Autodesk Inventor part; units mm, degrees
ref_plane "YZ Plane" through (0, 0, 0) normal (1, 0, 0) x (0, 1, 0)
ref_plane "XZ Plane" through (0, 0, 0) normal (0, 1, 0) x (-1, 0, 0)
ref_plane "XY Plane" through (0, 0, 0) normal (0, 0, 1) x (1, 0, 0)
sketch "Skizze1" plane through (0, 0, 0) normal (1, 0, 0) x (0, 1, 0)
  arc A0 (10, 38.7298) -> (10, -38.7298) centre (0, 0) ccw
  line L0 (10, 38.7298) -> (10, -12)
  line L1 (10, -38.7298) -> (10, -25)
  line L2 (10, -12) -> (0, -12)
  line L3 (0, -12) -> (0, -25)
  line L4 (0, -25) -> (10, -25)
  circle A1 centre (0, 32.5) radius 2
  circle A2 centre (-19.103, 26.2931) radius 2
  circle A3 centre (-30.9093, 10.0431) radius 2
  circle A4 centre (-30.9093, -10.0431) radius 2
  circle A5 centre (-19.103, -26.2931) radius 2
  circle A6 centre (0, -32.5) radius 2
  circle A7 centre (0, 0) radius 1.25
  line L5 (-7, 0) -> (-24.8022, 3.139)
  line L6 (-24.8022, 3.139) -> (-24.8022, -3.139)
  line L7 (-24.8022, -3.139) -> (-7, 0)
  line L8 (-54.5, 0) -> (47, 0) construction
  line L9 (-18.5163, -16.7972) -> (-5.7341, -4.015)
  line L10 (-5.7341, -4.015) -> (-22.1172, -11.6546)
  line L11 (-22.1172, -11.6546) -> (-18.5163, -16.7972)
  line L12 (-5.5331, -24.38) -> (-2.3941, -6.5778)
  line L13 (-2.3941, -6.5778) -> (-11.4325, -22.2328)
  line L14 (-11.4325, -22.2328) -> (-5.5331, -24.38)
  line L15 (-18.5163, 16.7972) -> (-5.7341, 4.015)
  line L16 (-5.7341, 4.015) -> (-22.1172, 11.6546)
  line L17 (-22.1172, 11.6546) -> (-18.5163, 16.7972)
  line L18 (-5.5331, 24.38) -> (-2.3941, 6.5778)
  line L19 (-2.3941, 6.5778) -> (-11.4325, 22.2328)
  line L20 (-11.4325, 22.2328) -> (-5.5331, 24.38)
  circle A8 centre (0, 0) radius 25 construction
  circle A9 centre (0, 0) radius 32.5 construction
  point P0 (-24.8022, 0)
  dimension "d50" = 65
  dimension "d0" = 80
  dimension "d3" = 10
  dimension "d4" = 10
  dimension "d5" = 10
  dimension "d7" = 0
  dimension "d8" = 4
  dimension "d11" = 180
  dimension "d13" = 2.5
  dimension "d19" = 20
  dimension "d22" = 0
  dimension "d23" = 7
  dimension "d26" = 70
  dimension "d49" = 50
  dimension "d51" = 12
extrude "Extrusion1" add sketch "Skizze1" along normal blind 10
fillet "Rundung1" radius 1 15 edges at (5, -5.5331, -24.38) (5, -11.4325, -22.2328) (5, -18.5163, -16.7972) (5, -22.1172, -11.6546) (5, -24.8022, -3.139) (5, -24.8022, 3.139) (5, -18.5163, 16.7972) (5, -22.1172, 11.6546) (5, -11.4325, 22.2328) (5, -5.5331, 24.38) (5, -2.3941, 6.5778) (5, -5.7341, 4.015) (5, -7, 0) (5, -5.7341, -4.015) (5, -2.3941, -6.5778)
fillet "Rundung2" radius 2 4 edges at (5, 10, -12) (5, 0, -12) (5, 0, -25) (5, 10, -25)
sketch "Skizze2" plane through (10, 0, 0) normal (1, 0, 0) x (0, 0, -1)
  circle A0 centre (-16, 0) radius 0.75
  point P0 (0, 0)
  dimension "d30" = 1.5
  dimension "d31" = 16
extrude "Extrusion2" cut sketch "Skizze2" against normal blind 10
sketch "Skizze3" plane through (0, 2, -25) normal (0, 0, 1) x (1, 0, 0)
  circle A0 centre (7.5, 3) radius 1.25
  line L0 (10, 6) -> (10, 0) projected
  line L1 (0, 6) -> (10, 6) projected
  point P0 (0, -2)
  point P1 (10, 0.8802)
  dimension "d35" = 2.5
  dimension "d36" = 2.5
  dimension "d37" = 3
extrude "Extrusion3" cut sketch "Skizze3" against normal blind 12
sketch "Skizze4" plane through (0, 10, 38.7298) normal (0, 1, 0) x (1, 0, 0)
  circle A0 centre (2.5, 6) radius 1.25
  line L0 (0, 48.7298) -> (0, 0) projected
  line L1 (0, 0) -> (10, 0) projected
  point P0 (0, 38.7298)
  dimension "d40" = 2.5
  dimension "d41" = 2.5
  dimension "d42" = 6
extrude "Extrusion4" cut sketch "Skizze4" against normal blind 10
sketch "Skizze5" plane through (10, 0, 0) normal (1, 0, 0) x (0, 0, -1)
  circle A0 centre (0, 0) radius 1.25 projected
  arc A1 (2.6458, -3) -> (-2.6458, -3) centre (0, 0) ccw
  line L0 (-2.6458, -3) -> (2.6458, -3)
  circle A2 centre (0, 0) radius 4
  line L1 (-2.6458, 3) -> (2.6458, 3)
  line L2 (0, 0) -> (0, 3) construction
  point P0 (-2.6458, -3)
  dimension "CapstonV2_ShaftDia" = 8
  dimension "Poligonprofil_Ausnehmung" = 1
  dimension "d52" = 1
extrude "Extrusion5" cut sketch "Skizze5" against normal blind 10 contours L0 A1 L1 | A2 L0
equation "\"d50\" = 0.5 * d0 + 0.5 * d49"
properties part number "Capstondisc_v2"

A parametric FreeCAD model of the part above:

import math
import FreeCAD as App
import Part
import Sketcher

V = App.Vector
Q = App.Units.Quantity


def edges_at(feature, points):
    """Names of the edges that pass closest to the given points."""
    edges = feature.Shape.Edges
    near = lambda p: min(range(len(edges)), key=lambda i: edges[i].distToShape(Part.Vertex(*p))[0])
    return sorted({f"Edge{near(p) + 1}" for p in points})


def add_polygon(sketch, points):
    """Adds a closed chain of lines whose ends are joined by coincident constraints."""
    first, n = sketch.GeometryCount, len(points)
    for a, b in zip(points, points[1:] + points[:1]):
        sketch.addGeometry(Part.LineSegment(App.Vector(*a, 0), App.Vector(*b, 0)), False)
    for i in range(n):
        sketch.addConstraint(Sketcher.Constraint("Coincident", first + i, 2, first + (i + 1) % n, 1))

doc = App.newDocument("Part")
body = doc.addObject("PartDesign::Body", "Body")

# Sketch on YZ plane
sketch1 = body.newObject("Sketcher::SketchObject", "Sketch")
sketch1.AttachmentSupport = (doc.getObject("YZ_Plane"), [""])
sketch1.MapMode = "FlatFace"
sketch1.addGeometry(Part.LineSegment(V(10, -12, 0), V(10, 38.7298, 0)), False)  # 0
sketch1.addGeometry(Part.ArcOfCircle(Part.Circle(V(0, 0, 0), V(0, 0, 1), 39.999968), math.radians(75.522476), math.radians(284.477524)), False)  # 1
sketch1.addGeometry(Part.LineSegment(V(10, -38.7298, 0), V(10, -25, 0)), False)  # 2
sketch1.addGeometry(Part.LineSegment(V(10, -25, 0), V(0, -25, 0)), False)  # 3
sketch1.addGeometry(Part.LineSegment(V(0, -25, 0), V(0, -12, 0)), False)  # 4
sketch1.addGeometry(Part.LineSegment(V(0, -12, 0), V(10, -12, 0)), False)  # 5
sketch1.addGeometry(Part.Circle(V(-19.103, -26.2931, 0), V(0, 0, 1), 2), False)  # 6
sketch1.addGeometry(Part.Circle(V(-30.9093, -10.0431, 0), V(0, 0, 1), 2), False)  # 7
sketch1.addGeometry(Part.Circle(V(0, -32.5, 0), V(0, 0, 1), 2), False)  # 8
add_polygon(sketch1, [(-5.7341, -4.015), (-18.5163, -16.7972), (-22.1172, -11.6546)])  # lines 9-11
add_polygon(sketch1, [(-2.3941, -6.5778), (-5.5331, -24.38), (-11.4325, -22.2328)])  # lines 12-14
sketch1.addGeometry(Part.Circle(V(-30.9093, 10.0431, 0), V(0, 0, 1), 2), False)  # 15
add_polygon(sketch1, [(-24.8022, 3.139), (-7, 0), (-24.8022, -3.139)])  # lines 16-18
sketch1.addGeometry(Part.Circle(V(-19.103, 26.2931, 0), V(0, 0, 1), 2), False)  # 19
add_polygon(sketch1, [(-22.1172, 11.6546), (-18.5163, 16.7972), (-5.7341, 4.015)])  # lines 20-22
add_polygon(sketch1, [(-11.4325, 22.2328), (-5.5331, 24.38), (-2.3941, 6.5778)])  # lines 23-25
sketch1.addGeometry(Part.Circle(V(0, 0, 0), V(0, 0, 1), 1.25), False)  # 26
sketch1.addGeometry(Part.Circle(V(0, 32.5, 0), V(0, 0, 1), 2), False)  # 27
sketch1.addConstraint([
    Sketcher.Constraint("Coincident", 0, 2, 1, 1),
    Sketcher.Constraint("Coincident", 1, 2, 2, 1),
    Sketcher.Constraint("Coincident", 2, 2, 3, 1),
    Sketcher.Constraint("Coincident", 3, 2, 4, 1),
    Sketcher.Constraint("Coincident", 4, 2, 5, 1),
    Sketcher.Constraint("Coincident", 5, 2, 0, 1),
    Sketcher.Constraint("Vertical", 0),
    Sketcher.Constraint("Vertical", 2),
    Sketcher.Constraint("Horizontal", 3),
    Sketcher.Constraint("Vertical", 4),
    Sketcher.Constraint("Horizontal", 5),
    Sketcher.Constraint("Vertical", 18),
    Sketcher.Constraint("Coincident", 1, 3, -1, 1),
    Sketcher.Constraint("Coincident", 26, 3, -1, 1),
    Sketcher.Constraint("Equal", 6, 7),
    Sketcher.Constraint("Equal", 7, 8),
    Sketcher.Constraint("Equal", 8, 15),
    Sketcher.Constraint("Equal", 15, 19),
    Sketcher.Constraint("Equal", 19, 27),
    Sketcher.Constraint("Symmetric", 8, 3, 27, 3, -1, 1),
    Sketcher.Constraint("Symmetric", 7, 3, 15, 3, -1),
    Sketcher.Constraint("Symmetric", 6, 3, 19, 3, -1),
    Sketcher.Constraint("Symmetric", 9, 2, 20, 2, -1),
    Sketcher.Constraint("Symmetric", 11, 2, 21, 2, -1),
    Sketcher.Constraint("Symmetric", 10, 2, 22, 2, -1),
    Sketcher.Constraint("Symmetric", 12, 2, 23, 2, -1),
    Sketcher.Constraint("Symmetric", 14, 2, 24, 2, -1),
    Sketcher.Constraint("Symmetric", 13, 2, 25, 2, -1),
    Sketcher.Constraint("PointOnObject", 8, 3, -2),
    Sketcher.Constraint("PointOnObject", 3, 2, -2),
    Sketcher.Constraint("PointOnObject", 16, 2, -1),
    Sketcher.Constraint("Perpendicular", 12, 16),
    Sketcher.Constraint("Perpendicular", 9, 21),
    Sketcher.Constraint("Perpendicular", 17, 24),
    Sketcher.Constraint("Vertical", 0, 2, 1, 2),
    Sketcher.Constraint("Equal", 9, 11),
    Sketcher.Constraint("Equal", 11, 12),
    Sketcher.Constraint("Equal", 10, 13),
    Sketcher.Constraint("Equal", 12, 14),
    Sketcher.Constraint("Equal", 14, 16),
    Sketcher.Constraint("Diameter", 6, Q("4 mm")),
    Sketcher.Constraint("Radius", 1, Q("40 mm")),
    Sketcher.Constraint("Diameter", 26, Q("2.5 mm")),
    Sketcher.Constraint("DistanceX", 3, 2, 3, 1, Q("10 mm")),
    Sketcher.Constraint("Angle", 16, Q("-10 deg")),
    Sketcher.Constraint("Angle", 23, Q("20 deg")),
    Sketcher.Constraint("DistanceY", 4, 2, -1, 1, Q("12 mm")),
    Sketcher.Constraint("DistanceX", 16, 2, -1, 1, Q("7 mm")),
    Sketcher.Constraint("DistanceY", 4, 1, 4, 2, Q("13 mm")),
    Sketcher.Constraint("DistanceY", 8, 3, -1, 1, Q("32.5 mm")),
    Sketcher.Constraint("DistanceY", 18, 1, 18, 2, Q("6.278 mm")),
    Sketcher.Constraint("DistanceY", 12, 2, -1, 1, Q("24.38 mm")),
    Sketcher.Constraint("DistanceY", 6, 3, 7, 3, Q("16.25 mm")),
    Sketcher.Constraint("DistanceX", 6, 3, 12, 2, Q("13.57 mm")),
    Sketcher.Constraint("DistanceX", 11, 2, 14, 2, Q("3.34 mm")),
    Sketcher.Constraint("DistanceY", 11, 2, 21, 2, Q("8.03 mm")),
    Sketcher.Constraint("DistanceX", 6, 3, -1, 1, Q("19.103 mm")),
    Sketcher.Constraint("DistanceY", 6, 3, -1, 1, Q("26.293 mm")),
    Sketcher.Constraint("DistanceX", 7, 3, 9, 2, Q("12.393 mm")),
])
pad1 = body.newObject("PartDesign::Pad", "Pad")
pad1.Profile = sketch1
pad1.Length = 10
doc.recompute()

fillet = body.newObject("PartDesign::Fillet", "Fillet")
fillet.Base = (pad1, edges_at(pad1, [
    (5, -5.533, -24.38),
    (5, -11.432, -22.233),
    (5, -18.516, -16.797),
    (5, -22.117, -11.655),
    (5, -24.802, -3.139),
    (5, -24.802, 3.139),
    (5, -18.516, 16.797),
    (5, -22.117, 11.655),
    (5, -11.432, 22.233),
    (5, -5.533, 24.38),
    (5, -2.394, 6.578),
    (5, -5.734, 4.015),
    (5, -7, 0),
    (5, -5.734, -4.015),
    (5, -2.394, -6.578),
]))
fillet.Radius = 1
doc.recompute()

fillet2 = body.newObject("PartDesign::Fillet", "Fillet001")
fillet2.Base = (fillet, edges_at(fillet, [
    (5, 10, -12),
    (5, 0, -12),
    (5, 0, -25),
    (5, 10, -25),
]))
fillet2.Radius = 2

# Sketch on YZ plane
sketch2 = body.newObject("Sketcher::SketchObject", "Sketch001")
sketch2.AttachmentSupport = (doc.getObject("YZ_Plane"), [""])
sketch2.MapMode = "FlatFace"
sketch2.AttachmentOffset = App.Placement(V(0, 0, 10), App.Rotation())
sketch2.addGeometry(Part.Circle(V(0, 16, 0), V(0, 0, 1), 0.75), False)
sketch2.addConstraint([
    Sketcher.Constraint("PointOnObject", 0, 3, -2),
    Sketcher.Constraint("Diameter", 0, Q("1.5 mm")),
    Sketcher.Constraint("DistanceY", -1, 1, 0, 3, Q("16 mm")),
])
pocket1 = body.newObject("PartDesign::Pocket", "Pocket")
pocket1.Profile = sketch2
pocket1.Length = 10

# Sketch on XY plane
sketch3 = body.newObject("Sketcher::SketchObject", "Sketch002")
sketch3.AttachmentSupport = (doc.getObject("XY_Plane"), [""])
sketch3.MapMode = "FlatFace"
sketch3.AttachmentOffset = App.Placement(V(0, 0, -25), App.Rotation())
sketch3.addGeometry(Part.Circle(V(7.5, 5, 0), V(0, 0, 1), 1.25), False)
sketch3.addConstraint([
    Sketcher.Constraint("Diameter", 0, Q("2.5 mm")),
    Sketcher.Constraint("DistanceY", -1, 1, 0, 3, Q("5 mm")),
    Sketcher.Constraint("DistanceX", -1, 1, 0, 3, Q("7.5 mm")),
])
pocket2 = body.newObject("PartDesign::Pocket", "Pocket001")
pocket2.Profile = sketch3
pocket2.Length = 12

# Sketch on XZ plane
sketch4 = body.newObject("Sketcher::SketchObject", "Sketch003")
sketch4.AttachmentSupport = (doc.getObject("XZ_Plane"), [""])
sketch4.MapMode = "FlatFace"
sketch4.AttachmentOffset = App.Placement(V(0, 0, -10), App.Rotation())
sketch4.addGeometry(Part.Circle(V(2.5, 32.7298, 0), V(0, 0, 1), 1.25), False)
sketch4.addConstraint([
    Sketcher.Constraint("Diameter", 0, Q("2.5 mm")),
    Sketcher.Constraint("DistanceX", -1, 1, 0, 3, Q("2.5 mm")),
    Sketcher.Constraint("DistanceY", -1, 1, 0, 3, Q("32.7298 mm")),
])
pocket3 = body.newObject("PartDesign::Pocket", "Pocket002")
pocket3.Profile = sketch4
pocket3.Length = 10
pocket3.Reversed = True

# Sketch on YZ plane
sketch5 = body.newObject("Sketcher::SketchObject", "Sketch004")
sketch5.AttachmentSupport = (doc.getObject("YZ_Plane"), [""])
sketch5.MapMode = "FlatFace"
sketch5.AttachmentOffset = App.Placement(V(0, 0, 10), App.Rotation())
sketch5.addGeometry([
    Part.ArcOfCircle(Part.Circle(V(0, 0, 0), V(0, 0, 1), 4.000032), math.radians(41.410145), math.radians(318.589855)),
    Part.LineSegment(V(3, -2.6458, 0), V(3, 2.6458, 0)),
    Part.Circle(V(0, 0, 0), V(0, 0, 1), 1.25),
], False)
sketch5.addConstraint([
    Sketcher.Constraint("Coincident", 0, 1, 1, 2),
    Sketcher.Constraint("Coincident", 1, 1, 0, 2),
    Sketcher.Constraint("Vertical", 1),
    Sketcher.Constraint("Coincident", 0, 3, -1, 1),
    Sketcher.Constraint("Coincident", 2, 3, -1, 1),
    Sketcher.Constraint("Radius", 0, Q("4 mm")),
    Sketcher.Constraint("Diameter", 2, Q("2.5 mm")),
    Sketcher.Constraint("DistanceX", -1, 1, 0, 1, Q("3 mm")),
])
pocket4 = body.newObject("PartDesign::Pocket", "Pocket003")
pocket4.Profile = sketch5
pocket4.Length = 10

doc.recompute()
